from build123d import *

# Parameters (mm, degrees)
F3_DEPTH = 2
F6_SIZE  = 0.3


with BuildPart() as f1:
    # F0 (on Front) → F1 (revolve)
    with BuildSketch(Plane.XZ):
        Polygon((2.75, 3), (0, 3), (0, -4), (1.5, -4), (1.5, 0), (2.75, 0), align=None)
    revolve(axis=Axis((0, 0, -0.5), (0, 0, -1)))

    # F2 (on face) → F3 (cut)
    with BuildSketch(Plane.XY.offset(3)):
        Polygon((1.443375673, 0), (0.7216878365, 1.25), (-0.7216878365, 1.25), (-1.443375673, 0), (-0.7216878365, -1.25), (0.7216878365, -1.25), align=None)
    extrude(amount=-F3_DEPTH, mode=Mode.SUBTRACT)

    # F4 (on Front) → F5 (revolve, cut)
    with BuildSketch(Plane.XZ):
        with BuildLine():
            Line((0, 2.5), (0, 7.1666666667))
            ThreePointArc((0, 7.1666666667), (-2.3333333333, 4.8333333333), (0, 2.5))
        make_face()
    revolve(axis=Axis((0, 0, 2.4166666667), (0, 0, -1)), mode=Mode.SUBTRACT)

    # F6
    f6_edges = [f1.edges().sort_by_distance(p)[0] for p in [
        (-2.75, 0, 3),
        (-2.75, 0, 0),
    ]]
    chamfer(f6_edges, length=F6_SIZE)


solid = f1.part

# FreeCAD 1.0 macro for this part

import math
import FreeCAD as App
import Part
import Sketcher
from FreeCAD import Vector
Q = App.Units.Quantity


def edges_at(feature, points):
    """Names of the edges that pass closest to the given points."""
    edges = feature.Shape.Edges
    near = lambda p: min(range(len(edges)), key=lambda i: edges[i].distToShape(Part.Vertex(*p))[0])
    return sorted({f"Edge{near(p) + 1}" for p in points})

doc = App.newDocument("Part")
body = doc.addObject("PartDesign::Body", "Body")

# Sketch on XZ plane
sketch1 = body.newObject("Sketcher::SketchObject", "Sketch")
sketch1.AttachmentSupport = (doc.getObject("XZ_Plane"), [""])
sketch1.MapMode = "FlatFace"
sketch1.addGeometry([
    Part.LineSegment(Vector(2.8, 3, 0), Vector(0, 3, 0)),  # 0
    Part.LineSegment(Vector(0, 3, 0), Vector(0, -4, 0)),  # 1
    Part.LineSegment(Vector(0, -4, 0), Vector(1.5, -4, 0)),  # 2
    Part.LineSegment(Vector(1.5, -4, 0), Vector(1.5, 0, 0)),  # 3
    Part.LineSegment(Vector(1.5, 0, 0), Vector(2.8, 0, 0)),  # 4
    Part.LineSegment(Vector(2.8, 0, 0), Vector(2.8, 3, 0)),  # 5
], False)
sketch1.addConstraint([
    Sketcher.Constraint("Coincident", 0, 2, 1, 1),
    Sketcher.Constraint("Coincident", 1, 2, 2, 1),
    Sketcher.Constraint("Coincident", 2, 2, 3, 1),
    Sketcher.Constraint("Coincident", 3, 2, 4, 1),
    Sketcher.Constraint("Coincident", 4, 2, 5, 1),
    Sketcher.Constraint("Coincident", 5, 2, 0, 1),
    Sketcher.Constraint("Horizontal", 0),
    Sketcher.Constraint("Vertical", 1),
    Sketcher.Constraint("Horizontal", 2),
    Sketcher.Constraint("Vertical", 3),
    Sketcher.Constraint("Horizontal", 4),
    Sketcher.Constraint("Vertical", 5),
    Sketcher.Constraint("PointOnObject", 0, 2, -2),
    Sketcher.Constraint("PointOnObject", 3, 2, -1),
    Sketcher.Constraint("DistanceY", 1, 2, 1, 1, 7.0),
    Sketcher.Constraint("DistanceY", 3, 1, 3, 2, 4.0),
    Sketcher.Constraint("DistanceX", 2, 1, 2, 2, 1.5),
    Sketcher.Constraint("DistanceX", 0, 2, 0, 1, 2.75),
])
revolution = body.newObject("PartDesign::Revolution", "Revolution")
revolution.Profile = sketch1
revolution.ReferenceAxis = (sketch1, ["V_Axis"])
revolution.Angle = 360

# Sketch on XY plane
sketch2 = body.newObject("Sketcher::SketchObject", "Sketch001")
sketch2.AttachmentSupport = (doc.getObject("XY_Plane"), [""])
sketch2.MapMode = "FlatFace"
sketch2.AttachmentOffset = App.Placement(Vector(0, 0, 3), App.Rotation())
sketch2.addGeometry([
    Part.LineSegment(Vector(1.4, 0, 0), Vector(0.7, 1.2, 0)),  # 0
    Part.LineSegment(Vector(0.7, 1.2, 0), Vector(-0.7, 1.2, 0)),  # 1
    Part.LineSegment(Vector(-0.7, 1.2, 0), Vector(-1.4, 0, 0)),  # 2
    Part.LineSegment(Vector(-1.4, 0, 0), Vector(-0.7, -1.2, 0)),  # 3
    Part.LineSegment(Vector(-0.7, -1.2, 0), Vector(0.7, -1.2, 0)),  # 4
    Part.LineSegment(Vector(0.7, -1.2, 0), Vector(1.4, 0, 0)),  # 5
], False)
sketch2.addConstraint([
    Sketcher.Constraint("Coincident", 0, 2, 1, 1),
    Sketcher.Constraint("Coincident", 1, 2, 2, 1),
    Sketcher.Constraint("Coincident", 2, 2, 3, 1),
    Sketcher.Constraint("Coincident", 3, 2, 4, 1),
    Sketcher.Constraint("Coincident", 4, 2, 5, 1),
    Sketcher.Constraint("Coincident", 5, 2, 0, 1),
    Sketcher.Constraint("Horizontal", 1),
    Sketcher.Constraint("Horizontal", 4),
    Sketcher.Constraint("Symmetric", 0, 2, 3, 2, -1, 1),
    Sketcher.Constraint("Symmetric", 2, 2, 5, 2, -1, 1),
    Sketcher.Constraint("PointOnObject", 2, 2, -1),
    Sketcher.Constraint("Parallel", 2, 5),
    Sketcher.Constraint("Vertical", 1, 2, 3, 2),
    Sketcher.Constraint("Angle", 0, Q("120 deg")),
    Sketcher.Constraint("DistanceY", 3, 2, 1, 2, 2.5),
    Sketcher.Constraint("DistanceX", 1, 2, 1, 1, 1.443376),
])
pocket1 = body.newObject("PartDesign::Pocket", "Pocket")
pocket1.Profile = sketch2
pocket1.Length = 2

# Sketch on XZ plane
sketch3 = body.newObject("Sketcher::SketchObject", "Sketch002")
sketch3.AttachmentSupport = (doc.getObject("XZ_Plane"), [""])
sketch3.MapMode = "FlatFace"
sketch3.addGeometry([
    Part.LineSegment(Vector(0, 2.5, 0), Vector(0, 7.2, 0)),
    Part.ArcOfCircle(Part.Circle(Vector(0, 4.8, 0), Vector(0, 0, 1), 2.3), math.radians(90), math.radians(270)),
], False)
sketch3.addConstraint([
    Sketcher.Constraint("Coincident", 0, 1, 1, 2),
    Sketcher.Constraint("Coincident", 1, 1, 0, 2),
    Sketcher.Constraint("Vertical", 0),
    Sketcher.Constraint("PointOnObject", 1, 3, -2),
    Sketcher.Constraint("PointOnObject", 0, 1, -2),
    Sketcher.Constraint("DistanceY", -1, 1, 0, 1, 2.5),
    Sketcher.Constraint("Radius", 1, 2.333333),
])
groove = body.newObject("PartDesign::Groove", "Groove")
groove.Profile = sketch3
groove.ReferenceAxis = (sketch3, ["V_Axis"])
groove.Angle = 360
doc.recompute()

chamfer = body.newObject("PartDesign::Chamfer", "Chamfer")
chamfer.Base = (groove, edges_at(groove, [(-2.75, 0, 3), (-2.75, 0, 0)]))
chamfer.Size = 0.3

doc.recompute()
